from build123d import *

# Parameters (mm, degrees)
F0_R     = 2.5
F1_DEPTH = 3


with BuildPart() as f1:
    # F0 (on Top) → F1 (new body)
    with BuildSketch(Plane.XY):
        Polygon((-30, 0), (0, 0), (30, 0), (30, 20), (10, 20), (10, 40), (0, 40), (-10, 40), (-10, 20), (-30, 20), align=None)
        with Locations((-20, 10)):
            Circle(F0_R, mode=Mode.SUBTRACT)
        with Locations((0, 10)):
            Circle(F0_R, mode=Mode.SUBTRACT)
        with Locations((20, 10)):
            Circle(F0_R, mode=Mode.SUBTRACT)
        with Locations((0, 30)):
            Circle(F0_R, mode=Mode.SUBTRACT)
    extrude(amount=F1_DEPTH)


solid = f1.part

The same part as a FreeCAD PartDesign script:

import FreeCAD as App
import Part
import Sketcher
from FreeCAD import Vector
Q = App.Units.Quantity


def add_polygon(sketch, points):
    """Adds a closed chain of lines whose ends are joined by coincident constraints."""
    first, n = sketch.GeometryCount, len(points)
    for a, b in zip(points, points[1:] + points[:1]):
        sketch.addGeometry(Part.LineSegment(App.Vector(*a, 0), App.Vector(*b, 0)), False)
    for i in range(n):
        sketch.addConstraint(Sketcher.Constraint("Coincident", first + i, 2, first + (i + 1) % n, 1))

doc = App.newDocument("Part")
params = doc.addObject("Spreadsheet::Sheet", "Params")
for row, (alias, value) in enumerate([
    ("sketch1_diameter", "5 mm"),
    ("sketch1_width", "60 mm"),
    ("pad1_length", "3 mm"),
], start=1):
    params.set(f"A{row}", alias)
    params.set(f"B{row}", "=" + value)
    params.setAlias(f"B{row}", alias)

body = doc.addObject("PartDesign::Body", "Body")

# Sketch on XY plane
sketch1 = body.newObject("Sketcher::SketchObject", "Sketch")
sketch1.AttachmentSupport = (doc.getObject("XY_Plane"), [""])
sketch1.MapMode = "FlatFace"
add_polygon(sketch1, [(-30, 0), (30, 0), (30, 20), (10, 20), (10, 40), (-10, 40), (-10, 20), (-30, 20)])  # lines 0-7
sketch1.addGeometry(Part.Circle(Vector(-20, 10, 0), Vector(0, 0, 1), 2.5), False)  # 8
sketch1.addGeometry(Part.Circle(Vector(0, 10, 0), Vector(0, 0, 1), 2.5), False)  # 9
sketch1.addGeometry(Part.Circle(Vector(20, 10, 0), Vector(0, 0, 1), 2.5), False)  # 10
sketch1.addGeometry(Part.Circle(Vector(0, 30, 0), Vector(0, 0, 1), 2.5), False)  # 11
sketch1.addConstraint([
    Sketcher.Constraint("Horizontal", 0),
    Sketcher.Constraint("Vertical", 1),
    Sketcher.Constraint("Horizontal", 2),
    Sketcher.Constraint("Vertical", 3),
    Sketcher.Constraint("Horizontal", 4),
    Sketcher.Constraint("Vertical", 5),
    Sketcher.Constraint("Horizontal", 6),
    Sketcher.Constraint("Vertical", 7),
    Sketcher.Constraint("Equal", 8, 9),
    Sketcher.Constraint("Equal", 9, 10),
    Sketcher.Constraint("Equal", 10, 11),
    Sketcher.Constraint("Symmetric", 0, 2, 7, 2, -1, 1),
    Sketcher.Constraint("Symmetric", 8, 3, 10, 3, -2),
    Sketcher.Constraint("Symmetric", 2, 2, 5, 2, -2),
    Sketcher.Constraint("PointOnObject", 9, 3, -2),
    Sketcher.Constraint("PointOnObject", 11, 3, -2),
    Sketcher.Constraint("Horizontal", 8, 3, 9, 3),
    Sketcher.Constraint("Equal", 2, 4),
    Sketcher.Constraint("Equal", 6, 1),
    Sketcher.Constraint("Equal", 1, 3),
    Sketcher.Constraint("Diameter", 8, Q("5 mm")),
    Sketcher.Constraint("DistanceX", 0, 1, 0, 2, Q("60 mm")),
    Sketcher.Constraint("DistanceX", 8, 3, -1, 1, Q("20 mm")),
    Sketcher.Constraint("DistanceY", -1, 1, 8, 3, Q("10 mm")),
    Sketcher.Constraint("DistanceY", -1, 1, 11, 3, Q("30 mm")),
])
sketch1.setExpression("Constraints[28]", "Params.sketch1_diameter")
sketch1.setExpression("Constraints[29]", "Params.sketch1_width")
pad1 = body.newObject("PartDesign::Pad", "Pad")
pad1.Profile = sketch1
pad1.setExpression("Length", "Params.pad1_length")

doc.recompute()
